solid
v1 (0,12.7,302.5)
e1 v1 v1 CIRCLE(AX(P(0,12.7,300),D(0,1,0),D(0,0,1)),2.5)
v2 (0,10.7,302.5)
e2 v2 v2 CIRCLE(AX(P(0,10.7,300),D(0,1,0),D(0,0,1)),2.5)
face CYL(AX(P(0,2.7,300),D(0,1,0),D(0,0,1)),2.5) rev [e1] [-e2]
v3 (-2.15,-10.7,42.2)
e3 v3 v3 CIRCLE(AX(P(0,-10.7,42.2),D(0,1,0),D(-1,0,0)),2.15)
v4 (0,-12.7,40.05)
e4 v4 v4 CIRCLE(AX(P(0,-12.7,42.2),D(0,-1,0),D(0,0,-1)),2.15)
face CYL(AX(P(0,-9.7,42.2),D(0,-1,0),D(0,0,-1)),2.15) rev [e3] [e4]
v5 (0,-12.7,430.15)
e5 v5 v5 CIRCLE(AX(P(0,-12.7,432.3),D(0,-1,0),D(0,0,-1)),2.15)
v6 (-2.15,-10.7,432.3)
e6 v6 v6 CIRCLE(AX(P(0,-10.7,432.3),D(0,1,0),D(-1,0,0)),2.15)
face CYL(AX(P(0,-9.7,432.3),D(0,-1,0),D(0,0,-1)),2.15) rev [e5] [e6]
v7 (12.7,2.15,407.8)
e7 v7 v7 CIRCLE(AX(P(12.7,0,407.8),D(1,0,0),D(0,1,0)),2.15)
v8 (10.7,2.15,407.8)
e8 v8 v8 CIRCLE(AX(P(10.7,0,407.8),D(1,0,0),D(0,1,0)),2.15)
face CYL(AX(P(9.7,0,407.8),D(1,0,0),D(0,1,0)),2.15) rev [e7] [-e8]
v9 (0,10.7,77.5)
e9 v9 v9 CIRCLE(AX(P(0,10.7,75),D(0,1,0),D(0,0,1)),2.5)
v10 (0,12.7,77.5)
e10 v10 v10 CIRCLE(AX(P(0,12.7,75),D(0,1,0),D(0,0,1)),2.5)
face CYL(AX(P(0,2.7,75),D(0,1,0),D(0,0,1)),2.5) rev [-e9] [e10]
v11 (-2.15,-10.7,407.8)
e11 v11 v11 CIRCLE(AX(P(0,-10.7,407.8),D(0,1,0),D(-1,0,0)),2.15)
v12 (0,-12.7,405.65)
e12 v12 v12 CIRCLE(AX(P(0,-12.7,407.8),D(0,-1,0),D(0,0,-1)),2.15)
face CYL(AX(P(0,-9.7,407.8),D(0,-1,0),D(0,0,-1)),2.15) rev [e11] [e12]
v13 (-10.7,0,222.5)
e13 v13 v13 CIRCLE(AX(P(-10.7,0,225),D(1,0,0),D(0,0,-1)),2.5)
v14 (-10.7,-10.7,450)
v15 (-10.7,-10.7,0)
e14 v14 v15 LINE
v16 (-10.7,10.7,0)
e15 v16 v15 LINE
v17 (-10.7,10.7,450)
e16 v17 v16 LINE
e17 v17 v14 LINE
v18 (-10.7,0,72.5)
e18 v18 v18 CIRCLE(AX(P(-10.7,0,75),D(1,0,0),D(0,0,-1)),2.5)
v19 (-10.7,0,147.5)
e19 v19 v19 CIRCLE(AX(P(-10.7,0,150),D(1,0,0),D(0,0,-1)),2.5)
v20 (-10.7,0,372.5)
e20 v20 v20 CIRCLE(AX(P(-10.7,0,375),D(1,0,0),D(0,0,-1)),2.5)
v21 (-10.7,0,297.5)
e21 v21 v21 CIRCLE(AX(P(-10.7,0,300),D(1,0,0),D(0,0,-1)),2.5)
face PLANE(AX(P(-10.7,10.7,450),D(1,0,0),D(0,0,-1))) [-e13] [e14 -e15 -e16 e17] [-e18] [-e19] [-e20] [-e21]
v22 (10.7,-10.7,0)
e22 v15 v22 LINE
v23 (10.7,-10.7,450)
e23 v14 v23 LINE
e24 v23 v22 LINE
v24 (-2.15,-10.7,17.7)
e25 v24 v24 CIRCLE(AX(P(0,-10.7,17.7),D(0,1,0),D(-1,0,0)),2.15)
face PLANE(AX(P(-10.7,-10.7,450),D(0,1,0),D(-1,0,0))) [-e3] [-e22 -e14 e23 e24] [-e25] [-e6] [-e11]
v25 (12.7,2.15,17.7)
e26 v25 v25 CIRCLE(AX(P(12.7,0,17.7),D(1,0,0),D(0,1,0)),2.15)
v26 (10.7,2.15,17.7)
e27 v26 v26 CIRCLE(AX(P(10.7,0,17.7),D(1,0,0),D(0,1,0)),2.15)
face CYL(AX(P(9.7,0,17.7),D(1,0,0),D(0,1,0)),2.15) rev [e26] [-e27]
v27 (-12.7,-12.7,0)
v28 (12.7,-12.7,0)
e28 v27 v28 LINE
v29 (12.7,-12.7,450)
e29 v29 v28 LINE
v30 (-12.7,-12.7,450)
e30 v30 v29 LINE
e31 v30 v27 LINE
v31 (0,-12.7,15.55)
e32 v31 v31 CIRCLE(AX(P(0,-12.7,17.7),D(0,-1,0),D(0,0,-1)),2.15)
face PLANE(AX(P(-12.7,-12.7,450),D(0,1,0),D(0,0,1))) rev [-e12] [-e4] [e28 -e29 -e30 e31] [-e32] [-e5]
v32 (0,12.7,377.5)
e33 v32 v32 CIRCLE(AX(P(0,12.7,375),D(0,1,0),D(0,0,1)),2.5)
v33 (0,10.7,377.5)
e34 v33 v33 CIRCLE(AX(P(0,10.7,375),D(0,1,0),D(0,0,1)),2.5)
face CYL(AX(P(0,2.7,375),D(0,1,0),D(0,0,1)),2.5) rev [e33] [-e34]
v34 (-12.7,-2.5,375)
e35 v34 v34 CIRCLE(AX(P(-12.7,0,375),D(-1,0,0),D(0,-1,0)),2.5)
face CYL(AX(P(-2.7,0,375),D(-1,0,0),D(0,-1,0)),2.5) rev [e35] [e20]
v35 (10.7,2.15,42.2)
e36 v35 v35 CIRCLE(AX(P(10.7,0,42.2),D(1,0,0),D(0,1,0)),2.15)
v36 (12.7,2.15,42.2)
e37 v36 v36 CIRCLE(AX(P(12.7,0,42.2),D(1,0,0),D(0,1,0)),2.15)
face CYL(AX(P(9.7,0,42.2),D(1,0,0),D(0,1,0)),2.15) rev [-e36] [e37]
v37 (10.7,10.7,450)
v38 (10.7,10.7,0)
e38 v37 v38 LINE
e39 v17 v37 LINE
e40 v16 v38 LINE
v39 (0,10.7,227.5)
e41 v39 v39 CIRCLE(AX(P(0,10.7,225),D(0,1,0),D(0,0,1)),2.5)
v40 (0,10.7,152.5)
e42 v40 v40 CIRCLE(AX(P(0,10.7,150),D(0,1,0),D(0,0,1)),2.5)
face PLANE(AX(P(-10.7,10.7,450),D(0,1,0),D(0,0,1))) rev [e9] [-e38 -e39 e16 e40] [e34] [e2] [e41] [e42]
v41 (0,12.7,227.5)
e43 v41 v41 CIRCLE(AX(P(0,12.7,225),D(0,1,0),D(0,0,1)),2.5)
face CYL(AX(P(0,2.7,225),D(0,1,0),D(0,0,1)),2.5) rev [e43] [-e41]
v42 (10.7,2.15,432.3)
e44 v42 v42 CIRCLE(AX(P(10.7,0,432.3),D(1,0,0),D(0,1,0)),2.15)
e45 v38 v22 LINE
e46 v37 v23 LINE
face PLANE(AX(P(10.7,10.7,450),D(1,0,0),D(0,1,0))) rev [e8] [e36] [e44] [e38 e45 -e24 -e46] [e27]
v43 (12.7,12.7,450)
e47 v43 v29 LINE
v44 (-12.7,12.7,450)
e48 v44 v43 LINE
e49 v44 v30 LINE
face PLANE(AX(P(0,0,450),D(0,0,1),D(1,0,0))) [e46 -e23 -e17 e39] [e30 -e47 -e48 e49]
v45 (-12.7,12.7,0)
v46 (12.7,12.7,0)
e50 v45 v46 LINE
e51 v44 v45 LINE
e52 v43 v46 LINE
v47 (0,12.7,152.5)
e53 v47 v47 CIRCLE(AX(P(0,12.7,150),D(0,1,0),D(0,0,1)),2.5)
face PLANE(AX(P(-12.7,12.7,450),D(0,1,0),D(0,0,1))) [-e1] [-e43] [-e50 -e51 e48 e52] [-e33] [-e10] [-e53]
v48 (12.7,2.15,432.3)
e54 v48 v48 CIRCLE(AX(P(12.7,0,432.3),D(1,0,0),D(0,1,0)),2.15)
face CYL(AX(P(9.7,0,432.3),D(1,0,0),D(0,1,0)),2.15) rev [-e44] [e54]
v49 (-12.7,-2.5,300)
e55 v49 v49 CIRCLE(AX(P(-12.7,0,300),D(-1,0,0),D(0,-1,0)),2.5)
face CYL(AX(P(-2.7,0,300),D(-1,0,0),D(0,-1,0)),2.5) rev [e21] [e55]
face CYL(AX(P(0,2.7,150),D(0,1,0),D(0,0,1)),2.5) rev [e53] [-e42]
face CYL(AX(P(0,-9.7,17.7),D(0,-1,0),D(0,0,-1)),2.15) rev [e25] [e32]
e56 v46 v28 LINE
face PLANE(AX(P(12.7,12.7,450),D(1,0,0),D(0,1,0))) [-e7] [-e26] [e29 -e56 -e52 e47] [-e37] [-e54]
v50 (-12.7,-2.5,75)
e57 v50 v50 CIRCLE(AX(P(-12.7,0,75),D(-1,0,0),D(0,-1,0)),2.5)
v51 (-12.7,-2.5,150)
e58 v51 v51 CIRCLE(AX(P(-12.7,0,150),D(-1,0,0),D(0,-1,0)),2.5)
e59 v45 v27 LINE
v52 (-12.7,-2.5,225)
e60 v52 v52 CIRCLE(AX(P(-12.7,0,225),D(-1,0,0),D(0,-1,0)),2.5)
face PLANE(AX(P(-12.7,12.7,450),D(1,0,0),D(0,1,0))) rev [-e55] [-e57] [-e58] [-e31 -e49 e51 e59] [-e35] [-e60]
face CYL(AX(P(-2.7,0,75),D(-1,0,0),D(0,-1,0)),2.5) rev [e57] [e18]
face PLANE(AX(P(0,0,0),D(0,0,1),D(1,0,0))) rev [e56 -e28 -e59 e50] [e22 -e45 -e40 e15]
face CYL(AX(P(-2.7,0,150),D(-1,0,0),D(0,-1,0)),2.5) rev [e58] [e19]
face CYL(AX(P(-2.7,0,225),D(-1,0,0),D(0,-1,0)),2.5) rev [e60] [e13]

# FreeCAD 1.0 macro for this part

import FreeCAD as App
import Part
import Sketcher
from FreeCAD import Vector

doc = App.newDocument("Part")
body = doc.addObject("PartDesign::Body", "Body")

# Sketch on XY plane
sketch1 = body.newObject("Sketcher::SketchObject", "Sketch")
sketch1.AttachmentSupport = (doc.getObject("XY_Plane"), [""])
sketch1.MapMode = "FlatFace"
sketch1.addGeometry([
    Part.LineSegment(Vector(-12.7, 12.7, 0), Vector(-12.7, -12.7, 0)),
    Part.LineSegment(Vector(-12.7, -12.7, 0), Vector(12.7, -12.7, 0)),
    Part.LineSegment(Vector(12.7, -12.7, 0), Vector(12.7, 12.7, 0)),
    Part.LineSegment(Vector(12.7, 12.7, 0), Vector(-12.7, 12.7, 0)),
], False)
sketch1.addConstraint([
    Sketcher.Constraint("Coincident", 0, 2, 1, 1),
    Sketcher.Constraint("Coincident", 1, 2, 2, 1),
    Sketcher.Constraint("Coincident", 2, 2, 3, 1),
    Sketcher.Constraint("Coincident", 3, 2, 0, 1),
    Sketcher.Constraint("Vertical", 0),
    Sketcher.Constraint("Horizontal", 1),
    Sketcher.Constraint("Vertical", 2),
    Sketcher.Constraint("Horizontal", 3),
    Sketcher.Constraint("Symmetric", 0, 2, 2, 2, -1, 1),
    Sketcher.Constraint("Equal", 3, 0),
    Sketcher.Constraint("DistanceX", 1, 1, 1, 2, 25.4),
])
pad1 = body.newObject("PartDesign::Pad", "Pad")
pad1.Profile = sketch1
pad1.Length = 450

# Sketch on XY plane
sketch2 = body.newObject("Sketcher::SketchObject", "Sketch001")
sketch2.AttachmentSupport = (doc.getObject("XY_Plane"), [""])
sketch2.MapMode = "FlatFace"
sketch2.addGeometry([
    Part.LineSegment(Vector(-10.7, 10.7, 0), Vector(-10.7, -10.7, 0)),
    Part.LineSegment(Vector(-10.7, -10.7, 0), Vector(10.7, -10.7, 0)),
    Part.LineSegment(Vector(10.7, -10.7, 0), Vector(10.7, 10.7, 0)),
    Part.LineSegment(Vector(10.7, 10.7, 0), Vector(-10.7, 10.7, 0)),
], False)
sketch2.addConstraint([
    Sketcher.Constraint("Coincident", 0, 2, 1, 1),
    Sketcher.Constraint("Coincident", 1, 2, 2, 1),
    Sketcher.Constraint("Coincident", 2, 2, 3, 1),
    Sketcher.Constraint("Coincident", 3, 2, 0, 1),
    Sketcher.Constraint("Vertical", 0),
    Sketcher.Constraint("Horizontal", 1),
    Sketcher.Constraint("Vertical", 2),
    Sketcher.Constraint("Horizontal", 3),
    Sketcher.Constraint("Symmetric", 0, 2, 2, 2, -1, 1),
    Sketcher.Constraint("Equal", 3, 0),
    Sketcher.Constraint("DistanceX", 1, 1, 1, 2, 21.4),
])
pocket1 = body.newObject("PartDesign::Pocket", "Pocket")
pocket1.Profile = sketch2
pocket1.Type = "ThroughAll"
pocket1.Reversed = True

# Sketch on XZ plane
sketch3 = body.newObject("Sketcher::SketchObject", "Sketch002")
sketch3.AttachmentSupport = (doc.getObject("XZ_Plane"), [""])
sketch3.MapMode = "FlatFace"
sketch3.AttachmentOffset = App.Placement(Vector(0, 0, 12.7), App.Rotation())
sketch3.addGeometry([
    Part.Circle(Vector(0, 17.7, 0), Vector(0, 0, 1), 2.15),
    Part.Circle(Vector(0, 42.2, 0), Vector(0, 0, 1), 2.15),
], False)
sketch3.addConstraint([
    Sketcher.Constraint("Equal", 0, 1),
    Sketcher.Constraint("PointOnObject", 0, 3, -2),
    Sketcher.Constraint("PointOnObject", 1, 3, -2),
    Sketcher.Constraint("Diameter", 0, 4.3),
    Sketcher.Constraint("DistanceY", -1, 1, 0, 3, 17.7),
    Sketcher.Constraint("DistanceY", -1, 1, 1, 3, 42.2),
])
pocket2 = body.newObject("PartDesign::Pocket", "Pocket001")
pocket2.Profile = sketch3
pocket2.Length = 3

# Sketch on YZ plane
sketch4 = body.newObject("Sketcher::SketchObject", "Sketch003")
sketch4.AttachmentSupport = (doc.getObject("YZ_Plane"), [""])
sketch4.MapMode = "FlatFace"
sketch4.AttachmentOffset = App.Placement(Vector(0, 0, 12.7), App.Rotation())
sketch4.addGeometry([
    Part.Circle(Vector(0, 42.2, 0), Vector(0, 0, 1), 2.15),
    Part.Circle(Vector(0, 17.7, 0), Vector(0, 0, 1), 2.15),
], False)
sketch4.addConstraint([
    Sketcher.Constraint("Equal", 0, 1),
    Sketcher.Constraint("PointOnObject", 0, 3, -2),
    Sketcher.Constraint("PointOnObject", 1, 3, -2),
    Sketcher.Constraint("Diameter", 0, 4.3),
    Sketcher.Constraint("DistanceY", -1, 1, 0, 3, 42.2),
    Sketcher.Constraint("DistanceY", -1, 1, 1, 3, 17.7),
])
pocket3 = body.newObject("PartDesign::Pocket", "Pocket002")
pocket3.Profile = sketch4
pocket3.Length = 3

# Sketch on YZ plane
sketch5 = body.newObject("Sketcher::SketchObject", "Sketch004")
sketch5.AttachmentSupport = (doc.getObject("YZ_Plane"), [""])
sketch5.MapMode = "FlatFace"
sketch5.AttachmentOffset = App.Placement(Vector(0, 0, 12.7), App.Rotation())
sketch5.addGeometry([
    Part.Circle(Vector(0, 407.8, 0), Vector(0, 0, 1), 2.15),
    Part.Circle(Vector(0, 432.3, 0), Vector(0, 0, 1), 2.15),
], False)
sketch5.addConstraint([
    Sketcher.Constraint("Equal", 0, 1),
    Sketcher.Constraint("PointOnObject", 0, 3, -2),
    Sketcher.Constraint("PointOnObject", 1, 3, -2),
    Sketcher.Constraint("Diameter", 0, 4.3),
    Sketcher.Constraint("DistanceY", -1, 1, 0, 3, 407.8),
    Sketcher.Constraint("DistanceY", -1, 1, 1, 3, 432.3),
])
pocket4 = body.newObject("PartDesign::Pocket", "Pocket003")
pocket4.Profile = sketch5
pocket4.Length = 3

# Sketch on XZ plane
sketch6 = body.newObject("Sketcher::SketchObject", "Sketch005")
sketch6.AttachmentSupport = (doc.getObject("XZ_Plane"), [""])
sketch6.MapMode = "FlatFace"
sketch6.AttachmentOffset = App.Placement(Vector(0, 0, 12.7), App.Rotation())
sketch6.addGeometry([
    Part.Circle(Vector(0, 407.8, 0), Vector(0, 0, 1), 2.15),
    Part.Circle(Vector(0, 432.3, 0), Vector(0, 0, 1), 2.15),
], False)
sketch6.addConstraint([
    Sketcher.Constraint("Equal", 0, 1),
    Sketcher.Constraint("PointOnObject", 0, 3, -2),
    Sketcher.Constraint("PointOnObject", 1, 3, -2),
    Sketcher.Constraint("Diameter", 0, 4.3),
    Sketcher.Constraint("DistanceY", -1, 1, 0, 3, 407.8),
    Sketcher.Constraint("DistanceY", -1, 1, 1, 3, 432.3),
])
pocket5 = body.newObject("PartDesign::Pocket", "Pocket004")
pocket5.Profile = sketch6
pocket5.Length = 3

# Sketch on XZ plane
sketch7 = body.newObject("Sketcher::SketchObject", "Sketch006")
sketch7.AttachmentSupport = (doc.getObject("XZ_Plane"), [""])
sketch7.MapMode = "FlatFace"
sketch7.AttachmentOffset = App.Placement(Vector(0, 0, -12.7), App.Rotation())
sketch7.addGeometry([
    Part.Circle(Vector(0, 375, 0), Vector(0, 0, 1), 2.5),  # 0
    Part.Circle(Vector(0, 300, 0), Vector(0, 0, 1), 2.5),  # 1
    Part.Circle(Vector(0, 225, 0), Vector(0, 0, 1), 2.5),  # 2
    Part.Circle(Vector(0, 150, 0), Vector(0, 0, 1), 2.5),  # 3
    Part.Circle(Vector(0, 75, 0), Vector(0, 0, 1), 2.5),  # 4
], False)
sketch7.addConstraint([
    Sketcher.Constraint("Equal", 0, 1),
    Sketcher.Constraint("Equal", 1, 2),
    Sketcher.Constraint("Equal", 2, 3),
    Sketcher.Constraint("Equal", 3, 4),
    Sketcher.Constraint("PointOnObject", 0, 3, -2),
    Sketcher.Constraint("PointOnObject", 1, 3, -2),
    Sketcher.Constraint("PointOnObject", 2, 3, -2),
    Sketcher.Constraint("PointOnObject", 3, 3, -2),
    Sketcher.Constraint("PointOnObject", 4, 3, -2),
    Sketcher.Constraint("Diameter", 0, 5.0),
    Sketcher.Constraint("DistanceY", -1, 1, 0, 3, 375.0),
    Sketcher.Constraint("DistanceY", -1, 1, 1, 3, 300.0),
    Sketcher.Constraint("DistanceY", -1, 1, 2, 3, 225.0),
    Sketcher.Constraint("DistanceY", -1, 1, 3, 3, 150.0),
    Sketcher.Constraint("DistanceY", -1, 1, 4, 3, 75.0),
])
pocket6 = body.newObject("PartDesign::Pocket", "Pocket005")
pocket6.Profile = sketch7
pocket6.Length = 10
pocket6.Reversed = True

# Sketch on YZ plane
sketch8 = body.newObject("Sketcher::SketchObject", "Sketch007")
sketch8.AttachmentSupport = (doc.getObject("YZ_Plane"), [""])
sketch8.MapMode = "FlatFace"
sketch8.AttachmentOffset = App.Placement(Vector(0, 0, -12.7), App.Rotation())
sketch8.addGeometry([
    Part.Circle(Vector(0, 375, 0), Vector(0, 0, 1), 2.5),  # 0
    Part.Circle(Vector(0, 300, 0), Vector(0, 0, 1), 2.5),  # 1
    Part.Circle(Vector(0, 225, 0), Vector(0, 0, 1), 2.5),  # 2
    Part.Circle(Vector(0, 150, 0), Vector(0, 0, 1), 2.5),  # 3
    Part.Circle(Vector(0, 75, 0), Vector(0, 0, 1), 2.5),  # 4
], False)
sketch8.addConstraint([
    Sketcher.Constraint("Equal", 0, 1),
    Sketcher.Constraint("Equal", 1, 2),
    Sketcher.Constraint("Equal", 2, 3),
    Sketcher.Constraint("Equal", 3, 4),
    Sketcher.Constraint("PointOnObject", 0, 3, -2),
    Sketcher.Constraint("PointOnObject", 1, 3, -2),
    Sketcher.Constraint("PointOnObject", 2, 3, -2),
    Sketcher.Constraint("PointOnObject", 3, 3, -2),
    Sketcher.Constraint("PointOnObject", 4, 3, -2),
    Sketcher.Constraint("Diameter", 0, 5.0),
    Sketcher.Constraint("DistanceY", -1, 1, 0, 3, 375.0),
    Sketcher.Constraint("DistanceY", -1, 1, 1, 3, 300.0),
    Sketcher.Constraint("DistanceY", -1, 1, 2, 3, 225.0),
    Sketcher.Constraint("DistanceY", -1, 1, 3, 3, 150.0),
    Sketcher.Constraint("DistanceY", -1, 1, 4, 3, 75.0),
])
pocket7 = body.newObject("PartDesign::Pocket", "Pocket006")
pocket7.Profile = sketch8
pocket7.Length = 10
pocket7.Reversed = True

doc.recompute()
